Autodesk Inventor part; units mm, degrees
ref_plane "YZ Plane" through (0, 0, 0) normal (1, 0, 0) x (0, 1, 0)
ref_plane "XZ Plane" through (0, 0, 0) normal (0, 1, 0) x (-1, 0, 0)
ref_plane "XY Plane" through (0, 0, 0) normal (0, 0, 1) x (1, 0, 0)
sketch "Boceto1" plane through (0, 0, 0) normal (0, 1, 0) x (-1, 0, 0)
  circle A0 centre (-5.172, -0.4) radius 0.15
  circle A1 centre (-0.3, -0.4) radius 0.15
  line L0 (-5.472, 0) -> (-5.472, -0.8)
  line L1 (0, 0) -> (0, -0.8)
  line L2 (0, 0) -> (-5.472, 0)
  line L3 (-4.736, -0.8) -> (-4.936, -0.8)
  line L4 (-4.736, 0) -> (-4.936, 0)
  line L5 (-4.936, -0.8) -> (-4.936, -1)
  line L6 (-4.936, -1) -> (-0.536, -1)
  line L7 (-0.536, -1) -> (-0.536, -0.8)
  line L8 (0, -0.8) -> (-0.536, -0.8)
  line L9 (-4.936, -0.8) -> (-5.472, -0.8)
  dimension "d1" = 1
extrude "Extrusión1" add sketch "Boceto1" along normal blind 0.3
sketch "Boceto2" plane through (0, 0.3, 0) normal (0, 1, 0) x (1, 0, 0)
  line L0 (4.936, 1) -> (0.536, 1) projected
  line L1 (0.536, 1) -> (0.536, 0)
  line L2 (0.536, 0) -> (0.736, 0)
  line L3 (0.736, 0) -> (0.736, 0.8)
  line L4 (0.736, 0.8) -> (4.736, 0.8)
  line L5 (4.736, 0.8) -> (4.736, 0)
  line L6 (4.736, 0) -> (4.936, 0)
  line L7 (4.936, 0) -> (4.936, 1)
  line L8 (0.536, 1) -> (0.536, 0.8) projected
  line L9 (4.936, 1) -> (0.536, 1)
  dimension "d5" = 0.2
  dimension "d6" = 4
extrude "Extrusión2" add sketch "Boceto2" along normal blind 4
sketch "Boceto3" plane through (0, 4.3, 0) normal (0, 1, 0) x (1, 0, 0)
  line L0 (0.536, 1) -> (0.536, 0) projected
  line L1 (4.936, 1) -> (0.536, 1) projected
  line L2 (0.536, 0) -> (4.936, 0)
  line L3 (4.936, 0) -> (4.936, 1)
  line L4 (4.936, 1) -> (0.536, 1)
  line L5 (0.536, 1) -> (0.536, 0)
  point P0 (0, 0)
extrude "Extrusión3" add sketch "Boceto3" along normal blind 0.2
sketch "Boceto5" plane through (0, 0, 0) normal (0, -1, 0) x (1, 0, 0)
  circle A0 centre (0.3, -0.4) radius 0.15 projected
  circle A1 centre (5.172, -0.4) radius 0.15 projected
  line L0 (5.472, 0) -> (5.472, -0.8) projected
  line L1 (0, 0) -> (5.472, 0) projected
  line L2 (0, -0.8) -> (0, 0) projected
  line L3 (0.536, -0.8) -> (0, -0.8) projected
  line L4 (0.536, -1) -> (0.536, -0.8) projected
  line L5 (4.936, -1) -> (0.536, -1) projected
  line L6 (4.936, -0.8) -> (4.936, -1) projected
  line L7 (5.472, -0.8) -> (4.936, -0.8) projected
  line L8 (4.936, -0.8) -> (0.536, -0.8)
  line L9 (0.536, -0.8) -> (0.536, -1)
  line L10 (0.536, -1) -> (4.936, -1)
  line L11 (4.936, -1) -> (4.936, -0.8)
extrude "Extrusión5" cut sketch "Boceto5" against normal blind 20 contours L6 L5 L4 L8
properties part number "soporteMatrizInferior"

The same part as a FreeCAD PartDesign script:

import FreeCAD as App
import Part
import Sketcher
from FreeCAD import Vector


def add_polygon(sketch, points):
    """Adds a closed chain of lines whose ends are joined by coincident constraints."""
    first, n = sketch.GeometryCount, len(points)
    for a, b in zip(points, points[1:] + points[:1]):
        sketch.addGeometry(Part.LineSegment(App.Vector(*a, 0), App.Vector(*b, 0)), False)
    for i in range(n):
        sketch.addConstraint(Sketcher.Constraint("Coincident", first + i, 2, first + (i + 1) % n, 1))

doc = App.newDocument("Part")
body = doc.addObject("PartDesign::Body", "Body")

# Sketch on XZ plane
sketch1 = body.newObject("Sketcher::SketchObject", "Sketch")
sketch1.AttachmentSupport = (doc.getObject("XZ_Plane"), [""])
sketch1.MapMode = "FlatFace"
add_polygon(sketch1, [(0, 0), (5.47, 0), (5.47, -0.8), (4.94, -0.8), (4.94, -1), (0.54, -1), (0.54, -0.8), (0, -0.8)])  # lines 0-7
sketch1.addGeometry(Part.Circle(Vector(5.17, -0.4, 0), Vector(0, 0, 1), 0.15), False)  # 8
sketch1.addGeometry(Part.Circle(Vector(0.3, -0.4, 0), Vector(0, 0, 1), 0.15), False)  # 9
sketch1.addConstraint(Sketcher.Constraint("Horizontal", 0))
sketch1.addConstraint(Sketcher.Constraint("Vertical", 1))
sketch1.addConstraint(Sketcher.Constraint("Horizontal", 2))
sketch1.addConstraint(Sketcher.Constraint("Vertical", 3))
sketch1.addConstraint(Sketcher.Constraint("Horizontal", 4))
sketch1.addConstraint(Sketcher.Constraint("Vertical", 5))
sketch1.addConstraint(Sketcher.Constraint("Horizontal", 6))
sketch1.addConstraint(Sketcher.Constraint("Vertical", 7))
sketch1.addConstraint(Sketcher.Constraint("Coincident", 7, 2, -1, 1))
sketch1.addConstraint(Sketcher.Constraint("Equal", 8, 9))
sketch1.addConstraint(Sketcher.Constraint("Horizontal", 8, 3, 9, 3))
sketch1.addConstraint(Sketcher.Constraint("Horizontal", 2, 2, 5, 2))
sketch1.addConstraint(Sketcher.Constraint("Equal", 2, 6))
sketch1.addConstraint(Sketcher.Constraint("DistanceY", 3, 2, -1, 1, 1.0))
sketch1.addConstraint(Sketcher.Constraint("Diameter", 8, 0.3))
sketch1.addConstraint(Sketcher.Constraint("DistanceX", 4, 2, 4, 1, 4.4))
sketch1.addConstraint(Sketcher.Constraint("DistanceY", 1, 2, 1, 1, 0.8))
sketch1.addConstraint(Sketcher.Constraint("DistanceY", 8, 3, -1, 1, 0.4))
sketch1.addConstraint(Sketcher.Constraint("DistanceX", -1, 1, 9, 3, 0.3))
sketch1.addConstraint(Sketcher.Constraint("DistanceX", 8, 3, 0, 2, 0.3))
sketch1.addConstraint(Sketcher.Constraint("DistanceX", 0, 1, 0, 2, 5.472))
pad1 = body.newObject("PartDesign::Pad", "Pad")
pad1.Profile = sketch1
pad1.Length = 0.3
pad1.Reversed = True

# Sketch on XZ plane
sketch2 = body.newObject("Sketcher::SketchObject", "Sketch001")
sketch2.AttachmentSupport = (doc.getObject("XZ_Plane"), [""])
sketch2.MapMode = "FlatFace"
sketch2.AttachmentOffset = App.Placement(Vector(0, 0, -0.3), App.Rotation())
add_polygon(sketch2, [(4.94, 0), (4.94, -1), (0.54, -1), (0.54, 0), (0.74, 0), (0.74, -0.8), (4.74, -0.8), (4.74, 0)])  # lines 0-7
sketch2.addConstraint(Sketcher.Constraint("Vertical", 0))
sketch2.addConstraint(Sketcher.Constraint("Horizontal", 1))
sketch2.addConstraint(Sketcher.Constraint("Vertical", 2))
sketch2.addConstraint(Sketcher.Constraint("Horizontal", 3))
sketch2.addConstraint(Sketcher.Constraint("Vertical", 4))
sketch2.addConstraint(Sketcher.Constraint("Horizontal", 5))
sketch2.addConstraint(Sketcher.Constraint("Vertical", 6))
sketch2.addConstraint(Sketcher.Constraint("Horizontal", 7))
sketch2.addConstraint(Sketcher.Constraint("PointOnObject", 2, 2, -1))
sketch2.addConstraint(Sketcher.Constraint("PointOnObject", 6, 2, -1))
sketch2.addConstraint(Sketcher.Constraint("Equal", 3, 7))
sketch2.addConstraint(Sketcher.Constraint("DistanceX", 5, 1, 5, 2, 4.0))
sketch2.addConstraint(Sketcher.Constraint("DistanceX", 3, 1, 3, 2, 0.2))
sketch2.addConstraint(Sketcher.Constraint("DistanceY", 1, 2, 4, 2, 0.2))
sketch2.addConstraint(Sketcher.Constraint("DistanceY", 0, 2, 0, 1, 1.0))
sketch2.addConstraint(Sketcher.Constraint("DistanceX", -1, 1, 0, 2, 4.936))
pad2 = body.newObject("PartDesign::Pad", "Pad001")
pad2.Profile = sketch2
pad2.Length = 4
pad2.Reversed = True

# Sketch on XZ plane
sketch3 = body.newObject("Sketcher::SketchObject", "Sketch002")
sketch3.AttachmentSupport = (doc.getObject("XZ_Plane"), [""])
sketch3.MapMode = "FlatFace"
sketch3.AttachmentOffset = App.Placement(Vector(0, 0, -4.3), App.Rotation())
add_polygon(sketch3, [(4.9, -1), (0.5, -1), (0.5, 0), (4.9, 0)])  # lines 0-3
sketch3.addConstraint(Sketcher.Constraint("Horizontal", 0))
sketch3.addConstraint(Sketcher.Constraint("Vertical", 1))
sketch3.addConstraint(Sketcher.Constraint("Horizontal", 2))
sketch3.addConstraint(Sketcher.Constraint("Vertical", 3))
sketch3.addConstraint(Sketcher.Constraint("PointOnObject", 1, 2, -1))
sketch3.addConstraint(Sketcher.Constraint("DistanceY", 1, 1, 1, 2, 1.0))
sketch3.addConstraint(Sketcher.Constraint("DistanceX", 0, 2, 0, 1, 4.4))
sketch3.addConstraint(Sketcher.Constraint("DistanceX", -1, 1, 0, 2, 0.536))
pad3 = body.newObject("PartDesign::Pad", "Pad002")
pad3.Profile = sketch3
pad3.Length = 0.2
pad3.Reversed = True

# Sketch on XZ plane
sketch4 = body.newObject("Sketcher::SketchObject", "Sketch003")
sketch4.AttachmentSupport = (doc.getObject("XZ_Plane"), [""])
sketch4.MapMode = "FlatFace"
add_polygon(sketch4, [(4.94, -1), (4.94, -0.8), (0.54, -0.8), (0.54, -1)])  # lines 0-3
sketch4.addConstraint(Sketcher.Constraint("Vertical", 0))
sketch4.addConstraint(Sketcher.Constraint("Horizontal", 1))
sketch4.addConstraint(Sketcher.Constraint("Vertical", 2))
sketch4.addConstraint(Sketcher.Constraint("Horizontal", 3))
sketch4.addConstraint(Sketcher.Constraint("DistanceX", 1, 2, 1, 1, 4.4))
sketch4.addConstraint(Sketcher.Constraint("DistanceY", 0, 1, 0, 2, 0.2))
sketch4.addConstraint(Sketcher.Constraint("DistanceY", 2, 2, -1, 1, 1.0))
sketch4.addConstraint(Sketcher.Constraint("DistanceX", -1, 1, 0, 2, 4.936))
pocket1 = body.newObject("PartDesign::Pocket", "Pocket")
pocket1.Profile = sketch4
pocket1.Length = 20

doc.recompute()
